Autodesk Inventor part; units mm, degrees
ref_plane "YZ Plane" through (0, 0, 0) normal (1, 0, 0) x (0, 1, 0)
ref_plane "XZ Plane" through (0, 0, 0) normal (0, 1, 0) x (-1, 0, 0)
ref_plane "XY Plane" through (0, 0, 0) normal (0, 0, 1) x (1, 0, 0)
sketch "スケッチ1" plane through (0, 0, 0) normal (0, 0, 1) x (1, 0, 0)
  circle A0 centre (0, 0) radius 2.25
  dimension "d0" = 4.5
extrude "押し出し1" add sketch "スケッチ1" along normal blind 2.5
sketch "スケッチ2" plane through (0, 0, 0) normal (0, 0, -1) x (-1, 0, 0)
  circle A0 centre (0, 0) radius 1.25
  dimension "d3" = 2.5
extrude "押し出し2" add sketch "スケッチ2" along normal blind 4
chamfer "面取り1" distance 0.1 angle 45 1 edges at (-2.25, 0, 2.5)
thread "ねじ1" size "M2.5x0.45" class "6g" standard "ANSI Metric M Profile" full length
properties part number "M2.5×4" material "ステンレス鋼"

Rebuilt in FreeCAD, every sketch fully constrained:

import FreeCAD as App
import Part
import Sketcher

V = App.Vector
Q = App.Units.Quantity


def edges_at(feature, points):
    """Names of the edges that pass closest to the given points."""
    edges = feature.Shape.Edges
    near = lambda p: min(range(len(edges)), key=lambda i: edges[i].distToShape(Part.Vertex(*p))[0])
    return sorted({f"Edge{near(p) + 1}" for p in points})

doc = App.newDocument("Part")
body = doc.addObject("PartDesign::Body", "Body")

sketch1 = doc.addObject("Sketcher::SketchObject", "Sketch")
body.addObject(sketch1)
sketch1.AttachmentSupport = (doc.XY_Plane, [""])
sketch1.MapMode = "FlatFace"
sketch1.addGeometry(Part.Circle(V(0, 0, 0), V(0, 0, 1), 2.2), False)
sketch1.addConstraint([
    Sketcher.Constraint("Coincident", 0, 3, -1, 1),
    Sketcher.Constraint("Diameter", 0, Q("4.5 mm")),
])
pad1 = doc.addObject("PartDesign::Pad", "Pad")
body.addObject(pad1)
pad1.Profile = sketch1
pad1.Length = 2.5

sketch2 = doc.addObject("Sketcher::SketchObject", "Sketch001")
body.addObject(sketch2)
sketch2.AttachmentSupport = (doc.XY_Plane, [""])
sketch2.MapMode = "FlatFace"
sketch2.addGeometry(Part.Circle(V(0, 0, 0), V(0, 0, 1), 1.2), False)
sketch2.addConstraint([
    Sketcher.Constraint("Coincident", 0, 3, -1, 1),
    Sketcher.Constraint("Diameter", 0, Q("2.5 mm")),
])
pad2 = doc.addObject("PartDesign::Pad", "Pad001")
body.addObject(pad2)
pad2.Profile = sketch2
pad2.Length = 4
pad2.Reversed = True
doc.recompute()

chamfer = doc.addObject("PartDesign::Chamfer", "Chamfer")
body.addObject(chamfer)
chamfer.Base = (pad2, edges_at(pad2, [(-2.25, 0, 2.5)]))
chamfer.Size = 0.1

doc.recompute()
